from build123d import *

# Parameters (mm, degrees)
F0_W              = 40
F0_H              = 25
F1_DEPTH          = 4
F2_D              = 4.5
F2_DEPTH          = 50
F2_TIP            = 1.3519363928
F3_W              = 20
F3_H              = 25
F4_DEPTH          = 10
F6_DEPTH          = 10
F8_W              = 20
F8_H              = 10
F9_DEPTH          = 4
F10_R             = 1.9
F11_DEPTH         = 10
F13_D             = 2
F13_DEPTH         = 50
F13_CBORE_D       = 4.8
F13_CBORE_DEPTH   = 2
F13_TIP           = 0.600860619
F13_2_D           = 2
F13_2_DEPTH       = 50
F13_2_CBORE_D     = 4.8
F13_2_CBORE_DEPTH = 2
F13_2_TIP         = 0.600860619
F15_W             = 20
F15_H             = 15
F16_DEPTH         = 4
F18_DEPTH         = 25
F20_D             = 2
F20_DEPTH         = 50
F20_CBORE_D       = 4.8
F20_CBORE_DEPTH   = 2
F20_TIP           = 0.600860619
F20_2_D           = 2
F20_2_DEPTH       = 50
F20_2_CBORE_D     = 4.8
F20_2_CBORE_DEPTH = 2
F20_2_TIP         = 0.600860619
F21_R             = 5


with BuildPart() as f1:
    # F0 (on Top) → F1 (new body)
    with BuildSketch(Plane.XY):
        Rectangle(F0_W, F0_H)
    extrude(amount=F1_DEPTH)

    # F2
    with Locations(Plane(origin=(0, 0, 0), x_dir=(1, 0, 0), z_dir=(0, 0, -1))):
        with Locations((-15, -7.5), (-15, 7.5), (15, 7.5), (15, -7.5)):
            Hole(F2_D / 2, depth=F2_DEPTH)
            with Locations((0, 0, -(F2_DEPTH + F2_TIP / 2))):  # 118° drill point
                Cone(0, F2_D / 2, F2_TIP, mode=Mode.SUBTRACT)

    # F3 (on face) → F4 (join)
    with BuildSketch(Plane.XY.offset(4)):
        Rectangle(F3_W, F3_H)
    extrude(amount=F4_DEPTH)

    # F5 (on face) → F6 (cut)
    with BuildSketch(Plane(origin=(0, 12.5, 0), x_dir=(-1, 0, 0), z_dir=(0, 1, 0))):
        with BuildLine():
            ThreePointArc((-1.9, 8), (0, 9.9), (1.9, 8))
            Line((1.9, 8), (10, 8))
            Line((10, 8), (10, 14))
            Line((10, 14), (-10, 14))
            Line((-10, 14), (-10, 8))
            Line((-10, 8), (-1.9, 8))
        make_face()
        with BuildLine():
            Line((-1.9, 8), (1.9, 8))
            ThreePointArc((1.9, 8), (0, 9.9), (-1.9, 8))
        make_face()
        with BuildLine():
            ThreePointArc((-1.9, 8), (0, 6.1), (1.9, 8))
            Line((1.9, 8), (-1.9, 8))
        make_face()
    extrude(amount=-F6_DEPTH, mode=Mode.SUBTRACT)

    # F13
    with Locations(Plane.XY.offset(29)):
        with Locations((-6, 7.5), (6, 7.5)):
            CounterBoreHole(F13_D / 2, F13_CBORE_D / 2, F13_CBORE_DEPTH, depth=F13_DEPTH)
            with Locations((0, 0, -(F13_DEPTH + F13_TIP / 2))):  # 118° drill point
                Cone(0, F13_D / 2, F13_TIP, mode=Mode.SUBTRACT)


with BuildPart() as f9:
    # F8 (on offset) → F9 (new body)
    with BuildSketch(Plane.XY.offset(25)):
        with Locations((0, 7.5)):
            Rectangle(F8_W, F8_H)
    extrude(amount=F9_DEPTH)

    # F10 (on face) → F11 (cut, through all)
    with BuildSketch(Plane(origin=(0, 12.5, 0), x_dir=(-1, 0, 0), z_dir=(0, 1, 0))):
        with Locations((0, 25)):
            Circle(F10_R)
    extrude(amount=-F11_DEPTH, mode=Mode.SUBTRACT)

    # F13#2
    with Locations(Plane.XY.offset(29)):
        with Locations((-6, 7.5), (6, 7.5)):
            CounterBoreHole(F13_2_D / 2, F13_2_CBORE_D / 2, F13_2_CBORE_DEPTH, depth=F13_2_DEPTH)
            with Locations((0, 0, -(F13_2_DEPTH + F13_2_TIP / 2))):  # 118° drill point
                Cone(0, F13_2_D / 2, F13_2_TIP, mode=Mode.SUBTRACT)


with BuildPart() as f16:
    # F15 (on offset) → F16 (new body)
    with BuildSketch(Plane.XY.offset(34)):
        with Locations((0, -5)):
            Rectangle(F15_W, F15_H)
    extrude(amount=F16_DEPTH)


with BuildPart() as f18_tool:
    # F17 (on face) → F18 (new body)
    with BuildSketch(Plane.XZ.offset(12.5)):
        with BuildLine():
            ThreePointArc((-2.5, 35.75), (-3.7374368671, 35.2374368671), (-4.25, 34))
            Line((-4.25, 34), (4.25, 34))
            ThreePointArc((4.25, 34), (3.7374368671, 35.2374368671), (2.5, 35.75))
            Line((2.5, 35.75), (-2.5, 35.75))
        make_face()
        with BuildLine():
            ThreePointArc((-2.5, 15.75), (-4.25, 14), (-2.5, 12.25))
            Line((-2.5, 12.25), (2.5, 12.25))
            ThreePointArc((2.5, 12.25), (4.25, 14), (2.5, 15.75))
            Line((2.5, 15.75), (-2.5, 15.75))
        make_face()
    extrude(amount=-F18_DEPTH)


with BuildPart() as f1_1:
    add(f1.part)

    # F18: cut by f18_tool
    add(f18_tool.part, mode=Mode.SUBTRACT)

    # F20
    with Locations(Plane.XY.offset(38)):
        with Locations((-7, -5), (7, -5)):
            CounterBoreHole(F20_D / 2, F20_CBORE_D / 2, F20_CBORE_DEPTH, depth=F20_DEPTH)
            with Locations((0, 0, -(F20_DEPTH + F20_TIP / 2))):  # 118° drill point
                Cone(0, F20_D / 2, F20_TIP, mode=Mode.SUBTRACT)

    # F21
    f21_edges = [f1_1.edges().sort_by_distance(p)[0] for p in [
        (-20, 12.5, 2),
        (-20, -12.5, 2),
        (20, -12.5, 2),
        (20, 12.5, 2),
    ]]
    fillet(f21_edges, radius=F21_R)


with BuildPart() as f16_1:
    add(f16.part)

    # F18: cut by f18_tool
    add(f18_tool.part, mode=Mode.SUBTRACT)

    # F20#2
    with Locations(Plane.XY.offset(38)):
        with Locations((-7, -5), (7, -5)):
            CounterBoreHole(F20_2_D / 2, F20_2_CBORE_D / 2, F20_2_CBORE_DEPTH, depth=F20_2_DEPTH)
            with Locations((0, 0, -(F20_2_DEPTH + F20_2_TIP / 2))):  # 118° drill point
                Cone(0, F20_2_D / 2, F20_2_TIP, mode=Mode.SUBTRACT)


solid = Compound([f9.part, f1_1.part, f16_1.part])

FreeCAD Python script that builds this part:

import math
import FreeCAD as App
import Part
import Sketcher
Q = App.Units.Quantity


def edges_at(feature, points):
    """Names of the edges that pass closest to the given points."""
    edges = feature.Shape.Edges
    near = lambda p: min(range(len(edges)), key=lambda i: edges[i].distToShape(Part.Vertex(*p))[0])
    return sorted({f"Edge{near(p) + 1}" for p in points})

doc = App.newDocument("Part")
body = doc.addObject("PartDesign::Body", "Body")

sketch1 = body.newObject("Sketcher::SketchObject", "Sketch")
sketch1.AttachmentSupport = (doc.getObject("XY_Plane"), [""])
sketch1.MapMode = "FlatFace"
sketch1.addGeometry(Part.LineSegment(App.Vector(-20, 12, 0), App.Vector(-20, -12, 0)), False)
sketch1.addGeometry(Part.LineSegment(App.Vector(-20, -12, 0), App.Vector(20, -12, 0)), False)
sketch1.addGeometry(Part.LineSegment(App.Vector(20, -12, 0), App.Vector(20, 12, 0)), False)
sketch1.addGeometry(Part.LineSegment(App.Vector(20, 12, 0), App.Vector(-20, 12, 0)), False)
sketch1.addConstraint(Sketcher.Constraint("Coincident", 0, 2, 1, 1))
sketch1.addConstraint(Sketcher.Constraint("Coincident", 1, 2, 2, 1))
sketch1.addConstraint(Sketcher.Constraint("Coincident", 2, 2, 3, 1))
sketch1.addConstraint(Sketcher.Constraint("Coincident", 3, 2, 0, 1))
sketch1.addConstraint(Sketcher.Constraint("Vertical", 0))
sketch1.addConstraint(Sketcher.Constraint("Horizontal", 1))
sketch1.addConstraint(Sketcher.Constraint("Vertical", 2))
sketch1.addConstraint(Sketcher.Constraint("Horizontal", 3))
sketch1.addConstraint(Sketcher.Constraint("Symmetric", 0, 2, 2, 2, -1, 1))
sketch1.addConstraint(Sketcher.Constraint("DistanceX", 1, 1, 1, 2, Q("40 mm")))
sketch1.addConstraint(Sketcher.Constraint("DistanceY", 0, 2, 0, 1, Q("25 mm")))
pad1 = body.newObject("PartDesign::Pad", "Pad")
pad1.Profile = sketch1
pad1.Length = 4

sketch2 = body.newObject("Sketcher::SketchObject", "Sketch001")
sketch2.AttachmentSupport = (doc.getObject("XY_Plane"), [""])
sketch2.MapMode = "FlatFace"
sketch2.addGeometry(Part.Circle(App.Vector(-15, 7.5, 0), App.Vector(0, 0, 1), 2.2), False)
sketch2.addGeometry(Part.Circle(App.Vector(-15, -7.5, 0), App.Vector(0, 0, 1), 2.2), False)
sketch2.addGeometry(Part.Circle(App.Vector(15, -7.5, 0), App.Vector(0, 0, 1), 2.2), False)
sketch2.addGeometry(Part.Circle(App.Vector(15, 7.5, 0), App.Vector(0, 0, 1), 2.2), False)
sketch2.addConstraint(Sketcher.Constraint("Equal", 0, 1))
sketch2.addConstraint(Sketcher.Constraint("Equal", 1, 2))
sketch2.addConstraint(Sketcher.Constraint("Equal", 2, 3))
sketch2.addConstraint(Sketcher.Constraint("Symmetric", 0, 3, 2, 3, -1, 1))
sketch2.addConstraint(Sketcher.Constraint("Symmetric", 1, 3, 3, 3, -1, 1))
sketch2.addConstraint(Sketcher.Constraint("Symmetric", 1, 3, 2, 3, -2))
sketch2.addConstraint(Sketcher.Constraint("Diameter", 0, Q("4.5 mm")))
sketch2.addConstraint(Sketcher.Constraint("DistanceX", 0, 3, -1, 1, Q("15 mm")))
sketch2.addConstraint(Sketcher.Constraint("DistanceY", 1, 3, 0, 3, Q("15 mm")))
doc.recompute()
hole = body.newObject("PartDesign::Hole", "Hole")
hole.Profile = sketch2
hole.ThreadType = "None"
hole.Diameter = 4.5
hole.DepthType = "Dimension"
hole.Depth = 50
hole.DrillPoint = "Angled"
hole.DrillPointAngle = 118
hole.Reversed = True

sketch3 = body.newObject("Sketcher::SketchObject", "Sketch002")
sketch3.AttachmentSupport = (doc.getObject("XY_Plane"), [""])
sketch3.MapMode = "FlatFace"
sketch3.AttachmentOffset = App.Placement(App.Vector(0, 0, 4), App.Rotation())
sketch3.addGeometry(Part.LineSegment(App.Vector(-10, 12, 0), App.Vector(-10, -12, 0)), False)
sketch3.addGeometry(Part.LineSegment(App.Vector(-10, -12, 0), App.Vector(10, -12, 0)), False)
sketch3.addGeometry(Part.LineSegment(App.Vector(10, -12, 0), App.Vector(10, 12, 0)), False)
sketch3.addGeometry(Part.LineSegment(App.Vector(10, 12, 0), App.Vector(-10, 12, 0)), False)
sketch3.addConstraint(Sketcher.Constraint("Coincident", 0, 2, 1, 1))
sketch3.addConstraint(Sketcher.Constraint("Coincident", 1, 2, 2, 1))
sketch3.addConstraint(Sketcher.Constraint("Coincident", 2, 2, 3, 1))
sketch3.addConstraint(Sketcher.Constraint("Coincident", 3, 2, 0, 1))
sketch3.addConstraint(Sketcher.Constraint("Vertical", 0))
sketch3.addConstraint(Sketcher.Constraint("Horizontal", 1))
sketch3.addConstraint(Sketcher.Constraint("Vertical", 2))
sketch3.addConstraint(Sketcher.Constraint("Horizontal", 3))
sketch3.addConstraint(Sketcher.Constraint("Symmetric", 0, 2, 2, 2, -1, 1))
sketch3.addConstraint(Sketcher.Constraint("DistanceX", 1, 1, 1, 2, Q("20 mm")))
sketch3.addConstraint(Sketcher.Constraint("DistanceY", 0, 2, 0, 1, Q("25 mm")))
pad2 = body.newObject("PartDesign::Pad", "Pad001")
pad2.Profile = sketch3
pad2.Length = 10

sketch4 = body.newObject("Sketcher::SketchObject", "Sketch003")
sketch4.AttachmentSupport = (doc.getObject("XZ_Plane"), [""])
sketch4.MapMode = "FlatFace"
sketch4.AttachmentOffset = App.Placement(App.Vector(0, 0, -12.5), App.Rotation())
sketch4.addGeometry(Part.LineSegment(App.Vector(-10, 8, 0), App.Vector(-10, 14, 0)), False)
sketch4.addGeometry(Part.LineSegment(App.Vector(-10, 14, 0), App.Vector(10, 14, 0)), False)
sketch4.addGeometry(Part.LineSegment(App.Vector(10, 14, 0), App.Vector(10, 8, 0)), False)
sketch4.addGeometry(Part.LineSegment(App.Vector(10, 8, 0), App.Vector(1.9, 8, 0)), False)
sketch4.addGeometry(Part.ArcOfCircle(Part.Circle(App.Vector(0, 8, 0), App.Vector(0, 0, 1), 1.9), math.radians(180), math.radians(360)), False)
sketch4.addGeometry(Part.LineSegment(App.Vector(-1.9, 8, 0), App.Vector(-10, 8, 0)), False)
sketch4.addConstraint(Sketcher.Constraint("Coincident", 0, 2, 1, 1))
sketch4.addConstraint(Sketcher.Constraint("Coincident", 1, 2, 2, 1))
sketch4.addConstraint(Sketcher.Constraint("Coincident", 2, 2, 3, 1))
sketch4.addConstraint(Sketcher.Constraint("Coincident", 3, 2, 4, 2))
sketch4.addConstraint(Sketcher.Constraint("Coincident", 4, 1, 5, 1))
sketch4.addConstraint(Sketcher.Constraint("Coincident", 5, 2, 0, 1))
sketch4.addConstraint(Sketcher.Constraint("Vertical", 0))
sketch4.addConstraint(Sketcher.Constraint("Horizontal", 1))
sketch4.addConstraint(Sketcher.Constraint("Vertical", 2))
sketch4.addConstraint(Sketcher.Constraint("Horizontal", 3))
sketch4.addConstraint(Sketcher.Constraint("Horizontal", 5))
sketch4.addConstraint(Sketcher.Constraint("Symmetric", 3, 2, 4, 1, -2))
sketch4.addConstraint(Sketcher.Constraint("Horizontal", 4, 3, 2, 2))
sketch4.addConstraint(Sketcher.Constraint("Equal", 3, 5))
sketch4.addConstraint(Sketcher.Constraint("Radius", 4, Q("1.9 mm")))
sketch4.addConstraint(Sketcher.Constraint("DistanceX", 1, 1, 1, 2, Q("20 mm")))
sketch4.addConstraint(Sketcher.Constraint("DistanceY", 0, 1, 0, 2, Q("6 mm")))
sketch4.addConstraint(Sketcher.Constraint("DistanceY", -1, 1, 4, 3, Q("8 mm")))
pocket1 = body.newObject("PartDesign::Pocket", "Pocket")
pocket1.Profile = sketch4
pocket1.Length = 10
pocket1.Reversed = True

sketch5 = body.newObject("Sketcher::SketchObject", "Sketch004")
sketch5.AttachmentSupport = (doc.getObject("XY_Plane"), [""])
sketch5.MapMode = "FlatFace"
sketch5.AttachmentOffset = App.Placement(App.Vector(0, 0, 29), App.Rotation())
sketch5.addGeometry(Part.Circle(App.Vector(-6, 7.5, 0), App.Vector(0, 0, 1), 1), False)
sketch5.addGeometry(Part.Circle(App.Vector(6, 7.5, 0), App.Vector(0, 0, 1), 1), False)
sketch5.addConstraint(Sketcher.Constraint("Equal", 0, 1))
sketch5.addConstraint(Sketcher.Constraint("Symmetric", 0, 3, 1, 3, -2))
sketch5.addConstraint(Sketcher.Constraint("Diameter", 0, Q("2 mm")))
sketch5.addConstraint(Sketcher.Constraint("DistanceX", 0, 3, -1, 1, Q("6 mm")))
sketch5.addConstraint(Sketcher.Constraint("DistanceY", -1, 1, 0, 3, Q("7.5 mm")))
doc.recompute()
hole2 = body.newObject("PartDesign::Hole", "Hole001")
hole2.Profile = sketch5
hole2.ThreadType = "None"
hole2.Diameter = 2
hole2.DepthType = "Dimension"
hole2.Depth = 50
hole2.DrillPoint = "Angled"
hole2.DrillPointAngle = 118
hole2.HoleCutType = "Counterbore"
hole2.HoleCutDiameter = 4.8
hole2.HoleCutDepth = 2
body2 = doc.addObject("PartDesign::Body", "Body001")

sketch6 = body2.newObject("Sketcher::SketchObject", "Sketch005")
sketch6.AttachmentSupport = (doc.getObject("XY_Plane001"), [""])
sketch6.MapMode = "FlatFace"
sketch6.AttachmentOffset = App.Placement(App.Vector(0, 0, 25), App.Rotation())
sketch6.addGeometry(Part.LineSegment(App.Vector(-10, 12, 0), App.Vector(-10, 2, 0)), False)
sketch6.addGeometry(Part.LineSegment(App.Vector(-10, 2, 0), App.Vector(10, 2, 0)), False)
sketch6.addGeometry(Part.LineSegment(App.Vector(10, 2, 0), App.Vector(10, 12, 0)), False)
sketch6.addGeometry(Part.LineSegment(App.Vector(10, 12, 0), App.Vector(-10, 12, 0)), False)
sketch6.addConstraint(Sketcher.Constraint("Coincident", 0, 2, 1, 1))
sketch6.addConstraint(Sketcher.Constraint("Coincident", 1, 2, 2, 1))
sketch6.addConstraint(Sketcher.Constraint("Coincident", 2, 2, 3, 1))
sketch6.addConstraint(Sketcher.Constraint("Coincident", 3, 2, 0, 1))
sketch6.addConstraint(Sketcher.Constraint("Vertical", 0))
sketch6.addConstraint(Sketcher.Constraint("Horizontal", 1))
sketch6.addConstraint(Sketcher.Constraint("Vertical", 2))
sketch6.addConstraint(Sketcher.Constraint("Horizontal", 3))
sketch6.addConstraint(Sketcher.Constraint("DistanceX", 1, 1, 1, 2, Q("20 mm")))
sketch6.addConstraint(Sketcher.Constraint("DistanceY", 0, 2, 0, 1, Q("10 mm")))
sketch6.addConstraint(Sketcher.Constraint("DistanceX", 0, 2, -1, 1, Q("10 mm")))
sketch6.addConstraint(Sketcher.Constraint("DistanceY", -1, 1, 0, 2, Q("2.5 mm")))
pad3 = body2.newObject("PartDesign::Pad", "Pad002")
pad3.Profile = sketch6
pad3.Length = 4

sketch7 = body2.newObject("Sketcher::SketchObject", "Sketch006")
sketch7.AttachmentSupport = (doc.getObject("XZ_Plane001"), [""])
sketch7.MapMode = "FlatFace"
sketch7.AttachmentOffset = App.Placement(App.Vector(0, 0, -12.5), App.Rotation())
sketch7.addGeometry(Part.Circle(App.Vector(0, 25, 0), App.Vector(0, 0, 1), 1.9), False)
sketch7.addConstraint(Sketcher.Constraint("PointOnObject", 0, 3, -2))
sketch7.addConstraint(Sketcher.Constraint("Diameter", 0, Q("3.8 mm")))
sketch7.addConstraint(Sketcher.Constraint("DistanceY", -1, 1, 0, 3, Q("25 mm")))
pocket2 = body2.newObject("PartDesign::Pocket", "Pocket001")
pocket2.Profile = sketch7
pocket2.Type = "ThroughAll"
pocket2.Reversed = True

sketch8 = body2.newObject("Sketcher::SketchObject", "Sketch007")
sketch8.AttachmentSupport = (doc.getObject("XY_Plane001"), [""])
sketch8.MapMode = "FlatFace"
sketch8.AttachmentOffset = App.Placement(App.Vector(0, 0, 29), App.Rotation())
sketch8.addGeometry(Part.Circle(App.Vector(-6, 7.5, 0), App.Vector(0, 0, 1), 1), False)
sketch8.addGeometry(Part.Circle(App.Vector(6, 7.5, 0), App.Vector(0, 0, 1), 1), False)
sketch8.addConstraint(Sketcher.Constraint("Equal", 0, 1))
sketch8.addConstraint(Sketcher.Constraint("Symmetric", 0, 3, 1, 3, -2))
sketch8.addConstraint(Sketcher.Constraint("Diameter", 0, Q("2 mm")))
sketch8.addConstraint(Sketcher.Constraint("DistanceX", 0, 3, -1, 1, Q("6 mm")))
sketch8.addConstraint(Sketcher.Constraint("DistanceY", -1, 1, 0, 3, Q("7.5 mm")))
doc.recompute()
hole3 = body2.newObject("PartDesign::Hole", "Hole002")
hole3.Profile = sketch8
hole3.ThreadType = "None"
hole3.Diameter = 2
hole3.DepthType = "Dimension"
hole3.Depth = 50
hole3.DrillPoint = "Angled"
hole3.DrillPointAngle = 118
hole3.HoleCutType = "Counterbore"
hole3.HoleCutDiameter = 4.8
hole3.HoleCutDepth = 2
body3 = doc.addObject("PartDesign::Body", "Body002")

sketch9 = body3.newObject("Sketcher::SketchObject", "Sketch008")
sketch9.AttachmentSupport = (doc.getObject("XY_Plane002"), [""])
sketch9.MapMode = "FlatFace"
sketch9.AttachmentOffset = App.Placement(App.Vector(0, 0, 34), App.Rotation())
sketch9.addGeometry(Part.LineSegment(App.Vector(-10, 2, 0), App.Vector(-10, -12, 0)), False)
sketch9.addGeometry(Part.LineSegment(App.Vector(-10, -12, 0), App.Vector(10, -12, 0)), False)
sketch9.addGeometry(Part.LineSegment(App.Vector(10, -12, 0), App.Vector(10, 2, 0)), False)
sketch9.addGeometry(Part.LineSegment(App.Vector(10, 2, 0), App.Vector(-10, 2, 0)), False)
sketch9.addConstraint(Sketcher.Constraint("Coincident", 0, 2, 1, 1))
sketch9.addConstraint(Sketcher.Constraint("Coincident", 1, 2, 2, 1))
sketch9.addConstraint(Sketcher.Constraint("Coincident", 2, 2, 3, 1))
sketch9.addConstraint(Sketcher.Constraint("Coincident", 3, 2, 0, 1))
sketch9.addConstraint(Sketcher.Constraint("Vertical", 0))
sketch9.addConstraint(Sketcher.Constraint("Horizontal", 1))
sketch9.addConstraint(Sketcher.Constraint("Vertical", 2))
sketch9.addConstraint(Sketcher.Constraint("Horizontal", 3))
sketch9.addConstraint(Sketcher.Constraint("DistanceX", 1, 1, 1, 2, Q("20 mm")))
sketch9.addConstraint(Sketcher.Constraint("DistanceY", 0, 2, 0, 1, Q("15 mm")))
sketch9.addConstraint(Sketcher.Constraint("DistanceX", 0, 2, -1, 1, Q("10 mm")))
sketch9.addConstraint(Sketcher.Constraint("DistanceY", 0, 2, -1, 1, Q("12.5 mm")))
pad4 = body3.newObject("PartDesign::Pad", "Pad003")
pad4.Profile = sketch9
pad4.Length = 4
body4 = doc.addObject("PartDesign::Body", "Body003")
body4.AllowCompound = True

sketch10 = body4.newObject("Sketcher::SketchObject", "Sketch009")
sketch10.AttachmentSupport = (doc.getObject("XZ_Plane003"), [""])
sketch10.MapMode = "FlatFace"
sketch10.AttachmentOffset = App.Placement(App.Vector(0, 0, 12.5), App.Rotation())
sketch10.addGeometry(Part.ArcOfCircle(Part.Circle(App.Vector(-2.5, 34, 0), App.Vector(0, 0, 1), 1.8), math.radians(90), math.radians(180)), False)
sketch10.addGeometry(Part.LineSegment(App.Vector(-4.2, 34, 0), App.Vector(4.2, 34, 0)), False)
sketch10.addGeometry(Part.ArcOfCircle(Part.Circle(App.Vector(2.5, 34, 0), App.Vector(0, 0, 1), 1.8), math.radians(0), math.radians(90)), False)
sketch10.addGeometry(Part.LineSegment(App.Vector(2.5, 35.8, 0), App.Vector(-2.5, 35.8, 0)), False)
sketch10.addGeometry(Part.ArcOfCircle(Part.Circle(App.Vector(-2.5, 14, 0), App.Vector(0, 0, 1), 1.8), math.radians(90), math.radians(270)), False)
sketch10.addGeometry(Part.LineSegment(App.Vector(-2.5, 12.2, 0), App.Vector(2.5, 12.2, 0)), False)
sketch10.addGeometry(Part.ArcOfCircle(Part.Circle(App.Vector(2.5, 14, 0), App.Vector(0, 0, 1), 1.8), math.radians(-90), math.radians(90)), False)
sketch10.addGeometry(Part.LineSegment(App.Vector(2.5, 15.8, 0), App.Vector(-2.5, 15.8, 0)), False)
sketch10.addConstraint(Sketcher.Constraint("Coincident", 0, 2, 1, 1))
sketch10.addConstraint(Sketcher.Constraint("Coincident", 1, 2, 2, 1))
sketch10.addConstraint(Sketcher.Constraint("Tangent", 2, 2, 3, 1))
sketch10.addConstraint(Sketcher.Constraint("Tangent", 3, 2, 0, 1))
sketch10.addConstraint(Sketcher.Constraint("Tangent", 4, 2, 5, 1))
sketch10.addConstraint(Sketcher.Constraint("Tangent", 5, 2, 6, 1))
sketch10.addConstraint(Sketcher.Constraint("Tangent", 6, 2, 7, 1))
sketch10.addConstraint(Sketcher.Constraint("Tangent", 7, 2, 4, 1))
sketch10.addConstraint(Sketcher.Constraint("Horizontal", 1))
sketch10.addConstraint(Sketcher.Constraint("Horizontal", 3))
sketch10.addConstraint(Sketcher.Constraint("Horizontal", 5))
sketch10.addConstraint(Sketcher.Constraint("Horizontal", 7))
sketch10.addConstraint(Sketcher.Constraint("Equal", 0, 2))
sketch10.addConstraint(Sketcher.Constraint("Equal", 2, 4))
sketch10.addConstraint(Sketcher.Constraint("Horizontal", 2, 3, 0, 2))
sketch10.addConstraint(Sketcher.Constraint("Vertical", 0, 3, 4, 3))
sketch10.addConstraint(Sketcher.Constraint("Vertical", 2, 3, 6, 3))
sketch10.addConstraint(Sketcher.Constraint("DistanceX", 3, 2, 3, 1, Q("5 mm")))
sketch10.addConstraint(Sketcher.Constraint("Radius", 0, Q("1.75 mm")))
sketch10.addConstraint(Sketcher.Constraint("DistanceY", -1, 1, 0, 3, Q("34 mm")))
sketch10.addConstraint(Sketcher.Constraint("DistanceY", -1, 1, 4, 3, Q("14 mm")))
sketch10.addConstraint(Sketcher.Constraint("DistanceX", 0, 3, -1, 1, Q("2.5 mm")))
pad5 = body4.newObject("PartDesign::Pad", "Pad004")
pad5.Profile = sketch10
pad5.Length = 25
pad5.Reversed = True
doc.recompute()

body5 = doc.addObject("PartDesign::Body", "Body004")
body5.BaseFeature = body4
boolean = body.newObject("PartDesign::Boolean", "Boolean")
boolean.Type = "Cut"
boolean.addObjects([body5])
doc.recompute()

sketch11 = body.newObject("Sketcher::SketchObject", "Sketch010")
sketch11.AttachmentSupport = (doc.getObject("XY_Plane"), [""])
sketch11.MapMode = "FlatFace"
sketch11.AttachmentOffset = App.Placement(App.Vector(0, 0, 38), App.Rotation())
sketch11.addGeometry(Part.Circle(App.Vector(-7, -5, 0), App.Vector(0, 0, 1), 1), False)
sketch11.addGeometry(Part.Circle(App.Vector(7, -5, 0), App.Vector(0, 0, 1), 1), False)
sketch11.addConstraint(Sketcher.Constraint("Equal", 0, 1))
sketch11.addConstraint(Sketcher.Constraint("Symmetric", 0, 3, 1, 3, -2))
sketch11.addConstraint(Sketcher.Constraint("Diameter", 0, Q("2 mm")))
sketch11.addConstraint(Sketcher.Constraint("DistanceX", 0, 3, -1, 1, Q("7 mm")))
sketch11.addConstraint(Sketcher.Constraint("DistanceY", 0, 3, -1, 1, Q("5 mm")))
doc.recompute()
hole4 = body.newObject("PartDesign::Hole", "Hole003")
hole4.Profile = sketch11
hole4.ThreadType = "None"
hole4.Diameter = 2
hole4.DepthType = "Dimension"
hole4.Depth = 50
hole4.DrillPoint = "Angled"
hole4.DrillPointAngle = 118
hole4.HoleCutType = "Counterbore"
hole4.HoleCutDiameter = 4.8
hole4.HoleCutDepth = 2
doc.recompute()

fillet = body.newObject("PartDesign::Fillet", "Fillet")
fillet.Base = (hole4, edges_at(hole4, [
    (-20, 12.5, 2),
    (-20, -12.5, 2),
    (20, -12.5, 2),
    (20, 12.5, 2),
]))
fillet.Radius = 5
doc.recompute()

boolean2 = body3.newObject("PartDesign::Boolean", "Boolean001")
boolean2.Type = "Cut"
boolean2.addObjects([body4])

sketch12 = body3.newObject("Sketcher::SketchObject", "Sketch011")
sketch12.AttachmentSupport = (doc.getObject("XY_Plane002"), [""])
sketch12.MapMode = "FlatFace"
sketch12.AttachmentOffset = App.Placement(App.Vector(0, 0, 38), App.Rotation())
sketch12.addGeometry(Part.Circle(App.Vector(-7, -5, 0), App.Vector(0, 0, 1), 1), False)
sketch12.addGeometry(Part.Circle(App.Vector(7, -5, 0), App.Vector(0, 0, 1), 1), False)
sketch12.addConstraint(Sketcher.Constraint("Equal", 0, 1))
sketch12.addConstraint(Sketcher.Constraint("Symmetric", 0, 3, 1, 3, -2))
sketch12.addConstraint(Sketcher.Constraint("Diameter", 0, Q("2 mm")))
sketch12.addConstraint(Sketcher.Constraint("DistanceX", 0, 3, -1, 1, Q("7 mm")))
sketch12.addConstraint(Sketcher.Constraint("DistanceY", 0, 3, -1, 1, Q("5 mm")))
doc.recompute()
hole5 = body3.newObject("PartDesign::Hole", "Hole004")
hole5.Profile = sketch12
hole5.ThreadType = "None"
hole5.Diameter = 2
hole5.DepthType = "Dimension"
hole5.Depth = 50
hole5.DrillPoint = "Angled"
hole5.DrillPointAngle = 118
hole5.HoleCutType = "Counterbore"
hole5.HoleCutDiameter = 4.8
hole5.HoleCutDepth = 2

doc.recompute()
